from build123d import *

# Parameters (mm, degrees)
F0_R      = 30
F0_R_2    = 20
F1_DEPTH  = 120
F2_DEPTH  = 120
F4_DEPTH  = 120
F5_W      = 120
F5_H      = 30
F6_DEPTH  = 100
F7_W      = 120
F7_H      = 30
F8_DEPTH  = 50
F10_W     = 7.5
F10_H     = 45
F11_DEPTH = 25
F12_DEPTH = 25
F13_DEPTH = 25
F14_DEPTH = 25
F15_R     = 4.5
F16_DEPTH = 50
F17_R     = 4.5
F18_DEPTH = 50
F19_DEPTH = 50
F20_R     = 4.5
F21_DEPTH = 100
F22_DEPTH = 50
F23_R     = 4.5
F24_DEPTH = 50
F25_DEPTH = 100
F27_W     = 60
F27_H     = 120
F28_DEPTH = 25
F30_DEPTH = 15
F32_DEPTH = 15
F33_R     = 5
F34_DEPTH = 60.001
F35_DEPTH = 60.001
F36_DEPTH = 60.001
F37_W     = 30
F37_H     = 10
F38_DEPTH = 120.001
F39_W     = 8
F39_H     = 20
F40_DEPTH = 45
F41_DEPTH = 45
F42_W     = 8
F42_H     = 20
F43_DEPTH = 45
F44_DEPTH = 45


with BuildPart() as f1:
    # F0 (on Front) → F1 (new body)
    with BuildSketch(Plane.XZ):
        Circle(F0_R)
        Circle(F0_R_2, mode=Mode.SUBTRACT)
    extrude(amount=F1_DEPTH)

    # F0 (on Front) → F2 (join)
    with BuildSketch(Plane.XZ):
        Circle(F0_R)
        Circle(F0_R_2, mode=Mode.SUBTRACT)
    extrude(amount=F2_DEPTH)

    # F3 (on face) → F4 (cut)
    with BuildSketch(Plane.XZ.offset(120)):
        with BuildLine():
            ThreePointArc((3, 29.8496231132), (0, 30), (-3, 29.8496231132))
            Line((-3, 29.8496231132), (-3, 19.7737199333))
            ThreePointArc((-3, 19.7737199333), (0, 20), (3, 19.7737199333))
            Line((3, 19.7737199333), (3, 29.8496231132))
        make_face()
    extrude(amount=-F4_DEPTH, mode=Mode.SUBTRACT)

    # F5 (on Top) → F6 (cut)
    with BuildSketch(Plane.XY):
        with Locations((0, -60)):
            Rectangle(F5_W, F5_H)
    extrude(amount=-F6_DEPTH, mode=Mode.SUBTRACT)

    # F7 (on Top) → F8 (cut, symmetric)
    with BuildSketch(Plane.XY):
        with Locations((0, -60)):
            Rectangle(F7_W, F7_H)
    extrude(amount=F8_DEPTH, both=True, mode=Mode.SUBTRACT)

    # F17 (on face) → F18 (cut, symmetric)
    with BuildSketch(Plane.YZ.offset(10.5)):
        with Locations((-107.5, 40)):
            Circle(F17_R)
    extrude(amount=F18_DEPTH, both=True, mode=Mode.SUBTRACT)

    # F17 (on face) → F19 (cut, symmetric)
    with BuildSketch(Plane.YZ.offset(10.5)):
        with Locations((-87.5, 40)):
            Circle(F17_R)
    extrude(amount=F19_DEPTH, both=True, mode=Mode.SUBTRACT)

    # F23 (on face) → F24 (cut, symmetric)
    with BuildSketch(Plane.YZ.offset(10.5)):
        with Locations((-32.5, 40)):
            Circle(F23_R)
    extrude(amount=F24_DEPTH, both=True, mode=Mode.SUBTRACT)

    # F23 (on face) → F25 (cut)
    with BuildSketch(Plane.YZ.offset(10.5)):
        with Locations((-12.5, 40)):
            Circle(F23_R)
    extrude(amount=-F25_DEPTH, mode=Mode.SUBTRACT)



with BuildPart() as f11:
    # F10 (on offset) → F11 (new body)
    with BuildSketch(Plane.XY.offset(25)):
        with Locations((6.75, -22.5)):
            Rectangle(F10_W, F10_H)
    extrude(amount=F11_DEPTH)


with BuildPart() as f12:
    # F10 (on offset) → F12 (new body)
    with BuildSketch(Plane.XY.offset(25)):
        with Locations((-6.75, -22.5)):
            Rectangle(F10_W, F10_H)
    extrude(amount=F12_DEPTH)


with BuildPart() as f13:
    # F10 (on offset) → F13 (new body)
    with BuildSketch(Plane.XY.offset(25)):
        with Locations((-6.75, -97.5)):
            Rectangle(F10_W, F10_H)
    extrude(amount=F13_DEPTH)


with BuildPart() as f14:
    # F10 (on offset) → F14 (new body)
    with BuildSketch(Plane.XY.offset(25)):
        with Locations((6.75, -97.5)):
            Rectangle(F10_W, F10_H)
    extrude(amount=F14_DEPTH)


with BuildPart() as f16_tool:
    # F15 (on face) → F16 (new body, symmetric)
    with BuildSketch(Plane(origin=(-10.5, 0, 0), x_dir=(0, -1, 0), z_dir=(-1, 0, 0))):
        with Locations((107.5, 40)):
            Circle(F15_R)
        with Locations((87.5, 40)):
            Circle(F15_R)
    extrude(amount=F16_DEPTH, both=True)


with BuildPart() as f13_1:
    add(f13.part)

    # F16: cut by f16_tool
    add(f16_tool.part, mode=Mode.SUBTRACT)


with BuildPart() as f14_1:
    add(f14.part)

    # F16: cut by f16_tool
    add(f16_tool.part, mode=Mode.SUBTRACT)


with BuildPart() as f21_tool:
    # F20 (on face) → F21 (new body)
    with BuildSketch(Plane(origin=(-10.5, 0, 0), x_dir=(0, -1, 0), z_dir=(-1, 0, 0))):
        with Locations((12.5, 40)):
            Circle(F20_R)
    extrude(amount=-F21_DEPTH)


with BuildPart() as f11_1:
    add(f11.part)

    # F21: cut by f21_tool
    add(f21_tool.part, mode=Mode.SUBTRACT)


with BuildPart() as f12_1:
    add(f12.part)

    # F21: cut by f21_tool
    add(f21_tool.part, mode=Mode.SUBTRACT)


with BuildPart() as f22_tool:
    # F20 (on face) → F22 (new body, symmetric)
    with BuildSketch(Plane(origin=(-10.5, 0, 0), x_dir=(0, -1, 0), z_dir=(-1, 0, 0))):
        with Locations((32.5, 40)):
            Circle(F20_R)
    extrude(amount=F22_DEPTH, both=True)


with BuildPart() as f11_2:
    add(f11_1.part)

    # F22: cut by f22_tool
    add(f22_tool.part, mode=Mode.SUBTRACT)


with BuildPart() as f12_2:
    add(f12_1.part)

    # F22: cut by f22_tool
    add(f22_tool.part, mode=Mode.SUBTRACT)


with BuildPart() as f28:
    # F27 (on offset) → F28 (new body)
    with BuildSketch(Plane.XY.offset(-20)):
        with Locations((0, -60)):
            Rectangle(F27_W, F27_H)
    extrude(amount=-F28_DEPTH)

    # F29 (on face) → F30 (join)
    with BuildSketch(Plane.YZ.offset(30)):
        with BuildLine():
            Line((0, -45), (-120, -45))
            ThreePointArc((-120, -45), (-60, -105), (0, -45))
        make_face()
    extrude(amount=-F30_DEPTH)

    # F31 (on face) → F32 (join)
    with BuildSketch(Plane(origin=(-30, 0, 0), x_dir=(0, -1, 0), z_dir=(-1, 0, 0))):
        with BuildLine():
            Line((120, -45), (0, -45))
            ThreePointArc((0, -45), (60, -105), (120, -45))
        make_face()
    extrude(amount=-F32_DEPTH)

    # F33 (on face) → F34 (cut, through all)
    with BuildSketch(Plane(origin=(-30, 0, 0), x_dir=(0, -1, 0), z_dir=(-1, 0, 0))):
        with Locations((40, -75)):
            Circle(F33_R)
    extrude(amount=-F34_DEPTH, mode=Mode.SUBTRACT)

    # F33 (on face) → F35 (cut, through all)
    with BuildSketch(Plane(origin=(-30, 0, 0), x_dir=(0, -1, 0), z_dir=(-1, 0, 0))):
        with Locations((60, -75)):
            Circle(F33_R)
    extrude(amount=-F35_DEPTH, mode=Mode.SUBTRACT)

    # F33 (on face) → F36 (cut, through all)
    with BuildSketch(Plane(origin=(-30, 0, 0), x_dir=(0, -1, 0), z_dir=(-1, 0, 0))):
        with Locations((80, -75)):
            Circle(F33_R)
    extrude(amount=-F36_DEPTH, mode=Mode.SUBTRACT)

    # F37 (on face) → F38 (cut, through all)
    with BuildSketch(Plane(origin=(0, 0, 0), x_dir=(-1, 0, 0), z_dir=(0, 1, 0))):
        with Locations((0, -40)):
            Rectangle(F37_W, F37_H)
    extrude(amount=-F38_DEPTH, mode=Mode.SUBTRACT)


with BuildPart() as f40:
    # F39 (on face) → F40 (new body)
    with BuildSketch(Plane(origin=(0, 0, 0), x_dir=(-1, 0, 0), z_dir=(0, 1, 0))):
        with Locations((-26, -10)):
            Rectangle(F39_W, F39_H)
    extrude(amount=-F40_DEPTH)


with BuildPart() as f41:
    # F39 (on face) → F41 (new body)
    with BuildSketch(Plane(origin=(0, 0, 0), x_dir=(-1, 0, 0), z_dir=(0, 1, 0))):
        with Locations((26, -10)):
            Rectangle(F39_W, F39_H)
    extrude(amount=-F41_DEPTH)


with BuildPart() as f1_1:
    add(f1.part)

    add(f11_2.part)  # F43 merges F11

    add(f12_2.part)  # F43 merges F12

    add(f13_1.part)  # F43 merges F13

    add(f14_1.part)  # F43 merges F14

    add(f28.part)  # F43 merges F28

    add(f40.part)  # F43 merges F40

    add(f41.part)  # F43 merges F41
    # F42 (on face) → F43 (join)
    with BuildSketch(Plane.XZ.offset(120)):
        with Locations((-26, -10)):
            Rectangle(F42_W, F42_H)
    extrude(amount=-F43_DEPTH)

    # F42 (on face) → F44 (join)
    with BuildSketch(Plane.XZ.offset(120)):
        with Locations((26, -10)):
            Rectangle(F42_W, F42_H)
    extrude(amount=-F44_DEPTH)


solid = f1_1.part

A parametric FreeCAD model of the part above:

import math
import FreeCAD as App
import Part
import Sketcher

V = App.Vector
Q = App.Units.Quantity


def add_polygon(sketch, points):
    """Adds a closed chain of lines whose ends are joined by coincident constraints."""
    first, n = sketch.GeometryCount, len(points)
    for a, b in zip(points, points[1:] + points[:1]):
        sketch.addGeometry(Part.LineSegment(App.Vector(*a, 0), App.Vector(*b, 0)), False)
    for i in range(n):
        sketch.addConstraint(Sketcher.Constraint("Coincident", first + i, 2, first + (i + 1) % n, 1))

doc = App.newDocument("Part")
body = doc.addObject("PartDesign::Body", "Body")
body.AllowCompound = True

sketch1 = doc.addObject("Sketcher::SketchObject", "Sketch")
body.addObject(sketch1)
sketch1.AttachmentSupport = (doc.XZ_Plane, [""])
sketch1.MapMode = "FlatFace"
sketch1.addGeometry([
    Part.Circle(V(0, 0, 0), V(0, 0, 1), 30),
    Part.Circle(V(0, 0, 0), V(0, 0, 1), 20),
], False)
sketch1.addConstraint([
    Sketcher.Constraint("Coincident", 0, 3, -1, 1),
    Sketcher.Constraint("Coincident", 1, 3, -1, 1),
    Sketcher.Constraint("Diameter", 0, Q("60 mm")),
    Sketcher.Constraint("Diameter", 1, Q("40 mm")),
])
pad1 = doc.addObject("PartDesign::Pad", "Pad")
body.addObject(pad1)
pad1.Profile = sketch1
pad1.Length = 120

sketch2 = doc.addObject("Sketcher::SketchObject", "Sketch001")
body.addObject(sketch2)
sketch2.AttachmentSupport = (doc.XZ_Plane, [""])
sketch2.MapMode = "FlatFace"
sketch2.addGeometry([
    Part.Circle(V(0, 0, 0), V(0, 0, 1), 30),
    Part.Circle(V(0, 0, 0), V(0, 0, 1), 20),
], False)
sketch2.addConstraint([
    Sketcher.Constraint("Coincident", 0, 3, -1, 1),
    Sketcher.Constraint("Coincident", 1, 3, -1, 1),
    Sketcher.Constraint("Diameter", 0, Q("60 mm")),
    Sketcher.Constraint("Diameter", 1, Q("40 mm")),
])
pad2 = doc.addObject("PartDesign::Pad", "Pad001")
body.addObject(pad2)
pad2.Profile = sketch2
pad2.Length = 120

sketch3 = doc.addObject("Sketcher::SketchObject", "Sketch002")
body.addObject(sketch3)
sketch3.AttachmentSupport = (doc.XZ_Plane, [""])
sketch3.MapMode = "FlatFace"
sketch3.AttachmentOffset = App.Placement(V(0, 0, 120), App.Rotation())
sketch3.addGeometry([
    Part.ArcOfCircle(Part.Circle(V(0, 0, 0), V(0, 0, 1), 30), math.radians(84.26083), math.radians(95.73917)),
    Part.LineSegment(V(-3, 29.849623, 0), V(-3, 19.77372, 0)),
    Part.ArcOfCircle(Part.Circle(V(0, 0, 0), V(0, 0, 1), 20), math.radians(81.373073), math.radians(98.626927)),
    Part.LineSegment(V(3, 19.77372, 0), V(3, 29.849623, 0)),
], False)
sketch3.addConstraint([
    Sketcher.Constraint("Coincident", 0, 2, 1, 1),
    Sketcher.Constraint("Coincident", 1, 2, 2, 2),
    Sketcher.Constraint("Coincident", 2, 1, 3, 1),
    Sketcher.Constraint("Coincident", 3, 2, 0, 1),
    Sketcher.Constraint("Vertical", 1),
    Sketcher.Constraint("Vertical", 3),
    Sketcher.Constraint("Coincident", 0, 3, -1, 1),
    Sketcher.Constraint("Coincident", 2, 3, -1, 1),
    Sketcher.Constraint("Horizontal", 1, 2, 2, 1),
    Sketcher.Constraint("Radius", 0, Q("30 mm")),
    Sketcher.Constraint("Radius", 2, Q("20 mm")),
    Sketcher.Constraint("DistanceX", 0, 2, -1, 1, Q("3 mm")),
])
pocket1 = doc.addObject("PartDesign::Pocket", "Pocket")
body.addObject(pocket1)
pocket1.Profile = sketch3
pocket1.Length = 120

sketch4 = doc.addObject("Sketcher::SketchObject", "Sketch003")
body.addObject(sketch4)
sketch4.AttachmentSupport = (doc.XY_Plane, [""])
sketch4.MapMode = "FlatFace"
add_polygon(sketch4, [(-60, -45), (-60, -75), (60, -75), (60, -45)])
sketch4.addConstraint([
    Sketcher.Constraint("Vertical", 0),
    Sketcher.Constraint("Horizontal", 1),
    Sketcher.Constraint("Vertical", 2),
    Sketcher.Constraint("Horizontal", 3),
    Sketcher.Constraint("DistanceX", 1, 1, 1, 2, Q("120 mm")),
    Sketcher.Constraint("DistanceY", 0, 2, 0, 1, Q("30 mm")),
    Sketcher.Constraint("DistanceX", 0, 2, -1, 1, Q("60 mm")),
    Sketcher.Constraint("DistanceY", 0, 2, -1, 1, Q("75 mm")),
])
pocket2 = doc.addObject("PartDesign::Pocket", "Pocket001")
body.addObject(pocket2)
pocket2.Profile = sketch4
pocket2.Length = 100

sketch5 = doc.addObject("Sketcher::SketchObject", "Sketch004")
body.addObject(sketch5)
sketch5.AttachmentSupport = (doc.XY_Plane, [""])
sketch5.MapMode = "FlatFace"
add_polygon(sketch5, [(-60, -45), (-60, -75), (60, -75), (60, -45)])
sketch5.addConstraint([
    Sketcher.Constraint("Vertical", 0),
    Sketcher.Constraint("Horizontal", 1),
    Sketcher.Constraint("Vertical", 2),
    Sketcher.Constraint("Horizontal", 3),
    Sketcher.Constraint("DistanceX", 1, 1, 1, 2, Q("120 mm")),
    Sketcher.Constraint("DistanceY", 0, 2, 0, 1, Q("30 mm")),
    Sketcher.Constraint("DistanceX", 0, 2, -1, 1, Q("60 mm")),
    Sketcher.Constraint("DistanceY", 0, 2, -1, 1, Q("75 mm")),
])
pocket3 = doc.addObject("PartDesign::Pocket", "Pocket002")
body.addObject(pocket3)
pocket3.Profile = sketch5
pocket3.Length = 100
pocket3.Midplane = True

sketch6 = doc.addObject("Sketcher::SketchObject", "Sketch005")
body.addObject(sketch6)
sketch6.AttachmentSupport = (doc.YZ_Plane, [""])
sketch6.MapMode = "FlatFace"
sketch6.AttachmentOffset = App.Placement(V(0, 0, 10.5), App.Rotation())
sketch6.addGeometry(Part.Circle(V(-107.5, 40, 0), V(0, 0, 1), 4.5), False)
sketch6.addConstraint([
    Sketcher.Constraint("Diameter", 0, Q("9 mm")),
    Sketcher.Constraint("DistanceY", -1, 1, 0, 3, Q("40 mm")),
    Sketcher.Constraint("DistanceX", 0, 3, -1, 1, Q("107.5 mm")),
])
pocket4 = doc.addObject("PartDesign::Pocket", "Pocket003")
body.addObject(pocket4)
pocket4.Profile = sketch6
pocket4.Length = 100
pocket4.Midplane = True

sketch7 = doc.addObject("Sketcher::SketchObject", "Sketch006")
body.addObject(sketch7)
sketch7.AttachmentSupport = (doc.YZ_Plane, [""])
sketch7.MapMode = "FlatFace"
sketch7.AttachmentOffset = App.Placement(V(0, 0, 10.5), App.Rotation())
sketch7.addGeometry(Part.Circle(V(-87.5, 40, 0), V(0, 0, 1), 4.5), False)
sketch7.addConstraint([
    Sketcher.Constraint("Diameter", 0, Q("9 mm")),
    Sketcher.Constraint("DistanceY", -1, 1, 0, 3, Q("40 mm")),
    Sketcher.Constraint("DistanceX", 0, 3, -1, 1, Q("87.5 mm")),
])
pocket5 = doc.addObject("PartDesign::Pocket", "Pocket004")
body.addObject(pocket5)
pocket5.Profile = sketch7
pocket5.Length = 100
pocket5.Midplane = True

sketch8 = doc.addObject("Sketcher::SketchObject", "Sketch007")
body.addObject(sketch8)
sketch8.AttachmentSupport = (doc.YZ_Plane, [""])
sketch8.MapMode = "FlatFace"
sketch8.AttachmentOffset = App.Placement(V(0, 0, 10.5), App.Rotation())
sketch8.addGeometry(Part.Circle(V(-32.5, 40, 0), V(0, 0, 1), 4.5), False)
sketch8.addConstraint([
    Sketcher.Constraint("Diameter", 0, Q("9 mm")),
    Sketcher.Constraint("DistanceY", -1, 1, 0, 3, Q("40 mm")),
    Sketcher.Constraint("DistanceX", 0, 3, -1, 1, Q("32.5 mm")),
])
pocket6 = doc.addObject("PartDesign::Pocket", "Pocket005")
body.addObject(pocket6)
pocket6.Profile = sketch8
pocket6.Length = 100
pocket6.Midplane = True

sketch9 = doc.addObject("Sketcher::SketchObject", "Sketch008")
body.addObject(sketch9)
sketch9.AttachmentSupport = (doc.YZ_Plane, [""])
sketch9.MapMode = "FlatFace"
sketch9.AttachmentOffset = App.Placement(V(0, 0, 10.5), App.Rotation())
sketch9.addGeometry(Part.Circle(V(-12.5, 40, 0), V(0, 0, 1), 4.5), False)
sketch9.addConstraint([
    Sketcher.Constraint("Diameter", 0, Q("9 mm")),
    Sketcher.Constraint("DistanceY", -1, 1, 0, 3, Q("40 mm")),
    Sketcher.Constraint("DistanceX", 0, 3, -1, 1, Q("12.5 mm")),
])
pocket7 = doc.addObject("PartDesign::Pocket", "Pocket006")
body.addObject(pocket7)
pocket7.Profile = sketch9
pocket7.Length = 100
body2 = doc.addObject("PartDesign::Body", "Body001")

sketch10 = doc.addObject("Sketcher::SketchObject", "Sketch009")
body2.addObject(sketch10)
sketch10.AttachmentSupport = (doc.getObject("XY_Plane001"), [""])
sketch10.MapMode = "FlatFace"
sketch10.AttachmentOffset = App.Placement(V(0, 0, 25), App.Rotation())
add_polygon(sketch10, [(3, 0), (3, -45), (10.5, -45), (10.5, 0)])
sketch10.addConstraint([
    Sketcher.Constraint("Vertical", 0),
    Sketcher.Constraint("Horizontal", 1),
    Sketcher.Constraint("Vertical", 2),
    Sketcher.Constraint("Horizontal", 3),
    Sketcher.Constraint("PointOnObject", 2, 2, -1),
    Sketcher.Constraint("DistanceY", 0, 2, 0, 1, Q("45 mm")),
    Sketcher.Constraint("DistanceX", 1, 1, 1, 2, Q("7.5 mm")),
    Sketcher.Constraint("DistanceX", -1, 1, 0, 2, Q("3 mm")),
])
pad3 = doc.addObject("PartDesign::Pad", "Pad002")
body2.addObject(pad3)
pad3.Profile = sketch10
pad3.Length = 25
body3 = doc.addObject("PartDesign::Body", "Body002")

sketch11 = doc.addObject("Sketcher::SketchObject", "Sketch010")
body3.addObject(sketch11)
sketch11.AttachmentSupport = (doc.getObject("XY_Plane002"), [""])
sketch11.MapMode = "FlatFace"
sketch11.AttachmentOffset = App.Placement(V(0, 0, 25), App.Rotation())
add_polygon(sketch11, [(-10.5, 0), (-10.5, -45), (-3, -45), (-3, 0)])
sketch11.addConstraint([
    Sketcher.Constraint("Vertical", 0),
    Sketcher.Constraint("Horizontal", 1),
    Sketcher.Constraint("Vertical", 2),
    Sketcher.Constraint("Horizontal", 3),
    Sketcher.Constraint("PointOnObject", 2, 2, -1),
    Sketcher.Constraint("DistanceY", 0, 2, 0, 1, Q("45 mm")),
    Sketcher.Constraint("DistanceX", 1, 1, 1, 2, Q("7.5 mm")),
    Sketcher.Constraint("DistanceX", 1, 2, -1, 1, Q("3 mm")),
])
pad4 = doc.addObject("PartDesign::Pad", "Pad003")
body3.addObject(pad4)
pad4.Profile = sketch11
pad4.Length = 25
body4 = doc.addObject("PartDesign::Body", "Body003")

sketch12 = doc.addObject("Sketcher::SketchObject", "Sketch011")
body4.addObject(sketch12)
sketch12.AttachmentSupport = (doc.getObject("XY_Plane003"), [""])
sketch12.MapMode = "FlatFace"
sketch12.AttachmentOffset = App.Placement(V(0, 0, 25), App.Rotation())
add_polygon(sketch12, [(-10.5, -75), (-10.5, -120), (-3, -120), (-3, -75)])
sketch12.addConstraint([
    Sketcher.Constraint("Vertical", 0),
    Sketcher.Constraint("Horizontal", 1),
    Sketcher.Constraint("Vertical", 2),
    Sketcher.Constraint("Horizontal", 3),
    Sketcher.Constraint("DistanceY", 0, 2, 0, 1, Q("45 mm")),
    Sketcher.Constraint("DistanceX", 1, 1, 1, 2, Q("7.5 mm")),
    Sketcher.Constraint("DistanceY", 0, 2, -1, 1, Q("120 mm")),
    Sketcher.Constraint("DistanceX", 1, 2, -1, 1, Q("3 mm")),
])
pad5 = doc.addObject("PartDesign::Pad", "Pad004")
body4.addObject(pad5)
pad5.Profile = sketch12
pad5.Length = 25
body5 = doc.addObject("PartDesign::Body", "Body004")

sketch13 = doc.addObject("Sketcher::SketchObject", "Sketch012")
body5.addObject(sketch13)
sketch13.AttachmentSupport = (doc.getObject("XY_Plane004"), [""])
sketch13.MapMode = "FlatFace"
sketch13.AttachmentOffset = App.Placement(V(0, 0, 25), App.Rotation())
add_polygon(sketch13, [(3, -75), (3, -120), (10.5, -120), (10.5, -75)])
sketch13.addConstraint([
    Sketcher.Constraint("Vertical", 0),
    Sketcher.Constraint("Horizontal", 1),
    Sketcher.Constraint("Vertical", 2),
    Sketcher.Constraint("Horizontal", 3),
    Sketcher.Constraint("DistanceY", 0, 2, 0, 1, Q("45 mm")),
    Sketcher.Constraint("DistanceX", 1, 1, 1, 2, Q("7.5 mm")),
    Sketcher.Constraint("DistanceX", -1, 1, 0, 2, Q("3 mm")),
    Sketcher.Constraint("DistanceY", 0, 2, -1, 1, Q("120 mm")),
])
pad6 = doc.addObject("PartDesign::Pad", "Pad005")
body5.addObject(pad6)
pad6.Profile = sketch13
pad6.Length = 25
body6 = doc.addObject("PartDesign::Body", "Body005")
body6.AllowCompound = True

sketch14 = doc.addObject("Sketcher::SketchObject", "Sketch013")
body6.addObject(sketch14)
sketch14.AttachmentSupport = (doc.getObject("YZ_Plane005"), [""])
sketch14.MapMode = "FlatFace"
sketch14.AttachmentOffset = App.Placement(V(0, 0, -10.5), App.Rotation())
sketch14.addGeometry([
    Part.Circle(V(-107.5, 40, 0), V(0, 0, 1), 4.5),
    Part.Circle(V(-87.5, 40, 0), V(0, 0, 1), 4.5),
], False)
sketch14.addConstraint([
    Sketcher.Constraint("Equal", 0, 1),
    Sketcher.Constraint("Horizontal", 0, 3, 1, 3),
    Sketcher.Constraint("Diameter", 0, Q("9 mm")),
    Sketcher.Constraint("DistanceY", -1, 1, 0, 3, Q("40 mm")),
    Sketcher.Constraint("DistanceX", 0, 3, 1, 3, Q("20 mm")),
    Sketcher.Constraint("DistanceX", 0, 3, -1, 1, Q("107.5 mm")),
])
pad7 = doc.addObject("PartDesign::Pad", "Pad006")
body6.addObject(pad7)
pad7.Profile = sketch14
pad7.Length = 100
pad7.Midplane = True
doc.recompute()

body7 = doc.addObject("PartDesign::Body", "Body006")
body7.BaseFeature = body6
boolean = doc.addObject("PartDesign::Boolean", "Boolean")
body4.addObject(boolean)
boolean.Type = "Cut"
boolean.addObjects([body7])
doc.recompute()

boolean2 = doc.addObject("PartDesign::Boolean", "Boolean001")
body5.addObject(boolean2)
boolean2.Type = "Cut"
boolean2.addObjects([body6])
body8 = doc.addObject("PartDesign::Body", "Body007")

sketch15 = doc.addObject("Sketcher::SketchObject", "Sketch014")
body8.addObject(sketch15)
sketch15.AttachmentSupport = (doc.getObject("YZ_Plane007"), [""])
sketch15.MapMode = "FlatFace"
sketch15.AttachmentOffset = App.Placement(V(0, 0, -10.5), App.Rotation())
sketch15.addGeometry(Part.Circle(V(-12.5, 40, 0), V(0, 0, 1), 4.5), False)
sketch15.addConstraint([
    Sketcher.Constraint("Diameter", 0, Q("9 mm")),
    Sketcher.Constraint("DistanceY", -1, 1, 0, 3, Q("40 mm")),
    Sketcher.Constraint("DistanceX", 0, 3, -1, 1, Q("12.5 mm")),
])
pad8 = doc.addObject("PartDesign::Pad", "Pad007")
body8.addObject(pad8)
pad8.Profile = sketch15
pad8.Length = 100
doc.recompute()

body9 = doc.addObject("PartDesign::Body", "Body008")
body9.BaseFeature = body8
boolean3 = doc.addObject("PartDesign::Boolean", "Boolean002")
body2.addObject(boolean3)
boolean3.Type = "Cut"
boolean3.addObjects([body9])
doc.recompute()

boolean4 = doc.addObject("PartDesign::Boolean", "Boolean003")
body3.addObject(boolean4)
boolean4.Type = "Cut"
boolean4.addObjects([body8])
body10 = doc.addObject("PartDesign::Body", "Body009")

sketch16 = doc.addObject("Sketcher::SketchObject", "Sketch015")
body10.addObject(sketch16)
sketch16.AttachmentSupport = (doc.getObject("YZ_Plane009"), [""])
sketch16.MapMode = "FlatFace"
sketch16.AttachmentOffset = App.Placement(V(0, 0, -10.5), App.Rotation())
sketch16.addGeometry(Part.Circle(V(-32.5, 40, 0), V(0, 0, 1), 4.5), False)
sketch16.addConstraint([
    Sketcher.Constraint("Diameter", 0, Q("9 mm")),
    Sketcher.Constraint("DistanceY", -1, 1, 0, 3, Q("40 mm")),
    Sketcher.Constraint("DistanceX", 0, 3, -1, 1, Q("32.5 mm")),
])
pad9 = doc.addObject("PartDesign::Pad", "Pad008")
body10.addObject(pad9)
pad9.Profile = sketch16
pad9.Length = 100
pad9.Midplane = True
doc.recompute()

body11 = doc.addObject("PartDesign::Body", "Body010")
body11.BaseFeature = body10
boolean5 = doc.addObject("PartDesign::Boolean", "Boolean004")
body2.addObject(boolean5)
boolean5.Type = "Cut"
boolean5.addObjects([body11])
doc.recompute()

boolean6 = doc.addObject("PartDesign::Boolean", "Boolean005")
body3.addObject(boolean6)
boolean6.Type = "Cut"
boolean6.addObjects([body10])
body12 = doc.addObject("PartDesign::Body", "Body011")

sketch17 = doc.addObject("Sketcher::SketchObject", "Sketch016")
body12.addObject(sketch17)
sketch17.AttachmentSupport = (doc.getObject("XY_Plane011"), [""])
sketch17.MapMode = "FlatFace"
sketch17.AttachmentOffset = App.Placement(V(0, 0, -20), App.Rotation())
add_polygon(sketch17, [(-30, 0), (-30, -120), (30, -120), (30, 0)])
sketch17.addConstraint([
    Sketcher.Constraint("Vertical", 0),
    Sketcher.Constraint("Horizontal", 1),
    Sketcher.Constraint("Vertical", 2),
    Sketcher.Constraint("Horizontal", 3),
    Sketcher.Constraint("Symmetric", 2, 2, 3, 2, -1, 1),
    Sketcher.Constraint("DistanceX", 1, 1, 1, 2, Q("60 mm")),
    Sketcher.Constraint("DistanceY", 0, 2, 0, 1, Q("120 mm")),
])
pad10 = doc.addObject("PartDesign::Pad", "Pad009")
body12.addObject(pad10)
pad10.Profile = sketch17
pad10.Length = 25
pad10.Reversed = True

sketch18 = doc.addObject("Sketcher::SketchObject", "Sketch017")
body12.addObject(sketch18)
sketch18.AttachmentSupport = (doc.getObject("YZ_Plane011"), [""])
sketch18.MapMode = "FlatFace"
sketch18.AttachmentOffset = App.Placement(V(0, 0, 30), App.Rotation())
sketch18.addGeometry([
    Part.LineSegment(V(0, -45, 0), V(-120, -45, 0)),
    Part.ArcOfCircle(Part.Circle(V(-60, -45, 0), V(0, 0, 1), 60), math.radians(180), math.radians(360)),
], False)
sketch18.addConstraint([
    Sketcher.Constraint("Coincident", 0, 1, 1, 2),
    Sketcher.Constraint("Coincident", 1, 1, 0, 2),
    Sketcher.Constraint("Horizontal", 0),
    Sketcher.Constraint("PointOnObject", 0, 1, -2),
    Sketcher.Constraint("Horizontal", 1, 3, 0, 1),
    Sketcher.Constraint("Radius", 1, Q("60 mm")),
    Sketcher.Constraint("DistanceY", 1, 3, -1, 1, Q("45 mm")),
])
pad11 = doc.addObject("PartDesign::Pad", "Pad010")
body12.addObject(pad11)
pad11.Profile = sketch18
pad11.Length = 15
pad11.Reversed = True

sketch19 = doc.addObject("Sketcher::SketchObject", "Sketch018")
body12.addObject(sketch19)
sketch19.AttachmentSupport = (doc.getObject("YZ_Plane011"), [""])
sketch19.MapMode = "FlatFace"
sketch19.AttachmentOffset = App.Placement(V(0, 0, -30), App.Rotation())
sketch19.addGeometry([
    Part.LineSegment(V(-120, -45, 0), V(0, -45, 0)),
    Part.ArcOfCircle(Part.Circle(V(-60, -45, 0), V(0, 0, 1), 60), math.radians(180), math.radians(360)),
], False)
sketch19.addConstraint([
    Sketcher.Constraint("Coincident", 0, 1, 1, 1),
    Sketcher.Constraint("Coincident", 1, 2, 0, 2),
    Sketcher.Constraint("Horizontal", 0),
    Sketcher.Constraint("PointOnObject", 1, 2, -2),
    Sketcher.Constraint("Horizontal", 1, 3, 0, 1),
    Sketcher.Constraint("Radius", 1, Q("60 mm")),
    Sketcher.Constraint("DistanceY", 1, 3, -1, 1, Q("45 mm")),
])
pad12 = doc.addObject("PartDesign::Pad", "Pad011")
body12.addObject(pad12)
pad12.Profile = sketch19
pad12.Length = 15

sketch20 = doc.addObject("Sketcher::SketchObject", "Sketch019")
body12.addObject(sketch20)
sketch20.AttachmentSupport = (doc.getObject("YZ_Plane011"), [""])
sketch20.MapMode = "FlatFace"
sketch20.AttachmentOffset = App.Placement(V(0, 0, -30), App.Rotation())
sketch20.addGeometry(Part.Circle(V(-40, -75, 0), V(0, 0, 1), 5), False)
sketch20.addConstraint([
    Sketcher.Constraint("Diameter", 0, Q("10 mm")),
    Sketcher.Constraint("DistanceX", 0, 3, -1, 1, Q("40 mm")),
    Sketcher.Constraint("DistanceY", 0, 3, -1, 1, Q("75 mm")),
])
pocket8 = doc.addObject("PartDesign::Pocket", "Pocket007")
body12.addObject(pocket8)
pocket8.Profile = sketch20
pocket8.Type = "ThroughAll"
pocket8.Reversed = True

sketch21 = doc.addObject("Sketcher::SketchObject", "Sketch020")
body12.addObject(sketch21)
sketch21.AttachmentSupport = (doc.getObject("YZ_Plane011"), [""])
sketch21.MapMode = "FlatFace"
sketch21.AttachmentOffset = App.Placement(V(0, 0, -30), App.Rotation())
sketch21.addGeometry(Part.Circle(V(-60, -75, 0), V(0, 0, 1), 5), False)
sketch21.addConstraint([
    Sketcher.Constraint("Diameter", 0, Q("10 mm")),
    Sketcher.Constraint("DistanceX", 0, 3, -1, 1, Q("60 mm")),
    Sketcher.Constraint("DistanceY", 0, 3, -1, 1, Q("75 mm")),
])
pocket9 = doc.addObject("PartDesign::Pocket", "Pocket008")
body12.addObject(pocket9)
pocket9.Profile = sketch21
pocket9.Type = "ThroughAll"
pocket9.Reversed = True

sketch22 = doc.addObject("Sketcher::SketchObject", "Sketch021")
body12.addObject(sketch22)
sketch22.AttachmentSupport = (doc.getObject("YZ_Plane011"), [""])
sketch22.MapMode = "FlatFace"
sketch22.AttachmentOffset = App.Placement(V(0, 0, -30), App.Rotation())
sketch22.addGeometry(Part.Circle(V(-80, -75, 0), V(0, 0, 1), 5), False)
sketch22.addConstraint([
    Sketcher.Constraint("Diameter", 0, Q("10 mm")),
    Sketcher.Constraint("DistanceX", 0, 3, -1, 1, Q("80 mm")),
    Sketcher.Constraint("DistanceY", 0, 3, -1, 1, Q("75 mm")),
])
pocket10 = doc.addObject("PartDesign::Pocket", "Pocket009")
body12.addObject(pocket10)
pocket10.Profile = sketch22
pocket10.Type = "ThroughAll"
pocket10.Reversed = True

sketch23 = doc.addObject("Sketcher::SketchObject", "Sketch022")
body12.addObject(sketch23)
sketch23.AttachmentSupport = (doc.getObject("XZ_Plane011"), [""])
sketch23.MapMode = "FlatFace"
add_polygon(sketch23, [(15, -35), (15, -45), (-15, -45), (-15, -35)])
sketch23.addConstraint([
    Sketcher.Constraint("Vertical", 0),
    Sketcher.Constraint("Horizontal", 1),
    Sketcher.Constraint("Vertical", 2),
    Sketcher.Constraint("Horizontal", 3),
    Sketcher.Constraint("DistanceX", 1, 2, 1, 1, Q("30 mm")),
    Sketcher.Constraint("DistanceY", 0, 2, 0, 1, Q("10 mm")),
    Sketcher.Constraint("DistanceX", -1, 1, 0, 2, Q("15 mm")),
    Sketcher.Constraint("DistanceY", 0, 2, -1, 1, Q("45 mm")),
])
pocket11 = doc.addObject("PartDesign::Pocket", "Pocket010")
body12.addObject(pocket11)
pocket11.Profile = sketch23
pocket11.Type = "ThroughAll"
pocket11.Reversed = True
body13 = doc.addObject("PartDesign::Body", "Body012")

sketch24 = doc.addObject("Sketcher::SketchObject", "Sketch023")
body13.addObject(sketch24)
sketch24.AttachmentSupport = (doc.getObject("XZ_Plane012"), [""])
sketch24.MapMode = "FlatFace"
add_polygon(sketch24, [(30, 0), (30, -20), (22, -20), (22, 0)])
sketch24.addConstraint([
    Sketcher.Constraint("Vertical", 0),
    Sketcher.Constraint("Horizontal", 1),
    Sketcher.Constraint("Vertical", 2),
    Sketcher.Constraint("Horizontal", 3),
    Sketcher.Constraint("PointOnObject", 2, 2, -1),
    Sketcher.Constraint("DistanceX", 1, 2, 1, 1, Q("8 mm")),
    Sketcher.Constraint("DistanceY", 0, 2, 0, 1, Q("20 mm")),
    Sketcher.Constraint("DistanceX", -1, 1, 0, 2, Q("30 mm")),
])
pad13 = doc.addObject("PartDesign::Pad", "Pad012")
body13.addObject(pad13)
pad13.Profile = sketch24
pad13.Length = 45
body14 = doc.addObject("PartDesign::Body", "Body013")

sketch25 = doc.addObject("Sketcher::SketchObject", "Sketch024")
body14.addObject(sketch25)
sketch25.AttachmentSupport = (doc.getObject("XZ_Plane013"), [""])
sketch25.MapMode = "FlatFace"
add_polygon(sketch25, [(-22, 0), (-22, -20), (-30, -20), (-30, 0)])
sketch25.addConstraint([
    Sketcher.Constraint("Vertical", 0),
    Sketcher.Constraint("Horizontal", 1),
    Sketcher.Constraint("Vertical", 2),
    Sketcher.Constraint("Horizontal", 3),
    Sketcher.Constraint("PointOnObject", 2, 2, -1),
    Sketcher.Constraint("DistanceX", 1, 2, 1, 1, Q("8 mm")),
    Sketcher.Constraint("DistanceY", 0, 2, 0, 1, Q("20 mm")),
    Sketcher.Constraint("DistanceX", 0, 2, -1, 1, Q("22 mm")),
])
pad14 = doc.addObject("PartDesign::Pad", "Pad013")
body14.addObject(pad14)
pad14.Profile = sketch25
pad14.Length = 45
body.AllowCompound = True
doc.recompute()

boolean7 = doc.addObject("PartDesign::Boolean", "Boolean006")
body.addObject(boolean7)
boolean7.Type = "Fuse"
boolean7.addObjects([body2])
doc.recompute()

boolean8 = doc.addObject("PartDesign::Boolean", "Boolean007")
body.addObject(boolean8)
boolean8.Type = "Fuse"
boolean8.addObjects([body3])
doc.recompute()

boolean9 = doc.addObject("PartDesign::Boolean", "Boolean008")
body.addObject(boolean9)
boolean9.Type = "Fuse"
boolean9.addObjects([body4])
doc.recompute()

boolean10 = doc.addObject("PartDesign::Boolean", "Boolean009")
body.addObject(boolean10)
boolean10.Type = "Fuse"
boolean10.addObjects([body5])
doc.recompute()

boolean11 = doc.addObject("PartDesign::Boolean", "Boolean010")
body.addObject(boolean11)
boolean11.Type = "Fuse"
boolean11.addObjects([body12])
doc.recompute()

boolean12 = doc.addObject("PartDesign::Boolean", "Boolean011")
body.addObject(boolean12)
boolean12.Type = "Fuse"
boolean12.addObjects([body13])
doc.recompute()

boolean13 = doc.addObject("PartDesign::Boolean", "Boolean012")
body.addObject(boolean13)
boolean13.Type = "Fuse"
boolean13.addObjects([body14])

sketch26 = doc.addObject("Sketcher::SketchObject", "Sketch025")
body.addObject(sketch26)
sketch26.AttachmentSupport = (doc.XZ_Plane, [""])
sketch26.MapMode = "FlatFace"
sketch26.AttachmentOffset = App.Placement(V(0, 0, 120), App.Rotation())
add_polygon(sketch26, [(-30, 0), (-30, -20), (-22, -20), (-22, 0)])
sketch26.addConstraint([
    Sketcher.Constraint("Vertical", 0),
    Sketcher.Constraint("Horizontal", 1),
    Sketcher.Constraint("Vertical", 2),
    Sketcher.Constraint("Horizontal", 3),
    Sketcher.Constraint("PointOnObject", 2, 2, -1),
    Sketcher.Constraint("DistanceX", 1, 1, 1, 2, Q("8 mm")),
    Sketcher.Constraint("DistanceY", 0, 2, 0, 1, Q("20 mm")),
    Sketcher.Constraint("DistanceX", 0, 2, -1, 1, Q("30 mm")),
])
pad15 = doc.addObject("PartDesign::Pad", "Pad014")
body.addObject(pad15)
pad15.Profile = sketch26
pad15.Length = 45
pad15.Reversed = True

sketch27 = doc.addObject("Sketcher::SketchObject", "Sketch026")
body.addObject(sketch27)
sketch27.AttachmentSupport = (doc.XZ_Plane, [""])
sketch27.MapMode = "FlatFace"
sketch27.AttachmentOffset = App.Placement(V(0, 0, 120), App.Rotation())
add_polygon(sketch27, [(22, 0), (22, -20), (30, -20), (30, 0)])
sketch27.addConstraint([
    Sketcher.Constraint("Vertical", 0),
    Sketcher.Constraint("Horizontal", 1),
    Sketcher.Constraint("Vertical", 2),
    Sketcher.Constraint("Horizontal", 3),
    Sketcher.Constraint("PointOnObject", 2, 2, -1),
    Sketcher.Constraint("DistanceX", 1, 1, 1, 2, Q("8 mm")),
    Sketcher.Constraint("DistanceY", 0, 2, 0, 1, Q("20 mm")),
    Sketcher.Constraint("DistanceX", -1, 1, 0, 2, Q("22 mm")),
])
pad16 = doc.addObject("PartDesign::Pad", "Pad015")
body.addObject(pad16)
pad16.Profile = sketch27
pad16.Length = 45
pad16.Reversed = True

doc.recompute()
